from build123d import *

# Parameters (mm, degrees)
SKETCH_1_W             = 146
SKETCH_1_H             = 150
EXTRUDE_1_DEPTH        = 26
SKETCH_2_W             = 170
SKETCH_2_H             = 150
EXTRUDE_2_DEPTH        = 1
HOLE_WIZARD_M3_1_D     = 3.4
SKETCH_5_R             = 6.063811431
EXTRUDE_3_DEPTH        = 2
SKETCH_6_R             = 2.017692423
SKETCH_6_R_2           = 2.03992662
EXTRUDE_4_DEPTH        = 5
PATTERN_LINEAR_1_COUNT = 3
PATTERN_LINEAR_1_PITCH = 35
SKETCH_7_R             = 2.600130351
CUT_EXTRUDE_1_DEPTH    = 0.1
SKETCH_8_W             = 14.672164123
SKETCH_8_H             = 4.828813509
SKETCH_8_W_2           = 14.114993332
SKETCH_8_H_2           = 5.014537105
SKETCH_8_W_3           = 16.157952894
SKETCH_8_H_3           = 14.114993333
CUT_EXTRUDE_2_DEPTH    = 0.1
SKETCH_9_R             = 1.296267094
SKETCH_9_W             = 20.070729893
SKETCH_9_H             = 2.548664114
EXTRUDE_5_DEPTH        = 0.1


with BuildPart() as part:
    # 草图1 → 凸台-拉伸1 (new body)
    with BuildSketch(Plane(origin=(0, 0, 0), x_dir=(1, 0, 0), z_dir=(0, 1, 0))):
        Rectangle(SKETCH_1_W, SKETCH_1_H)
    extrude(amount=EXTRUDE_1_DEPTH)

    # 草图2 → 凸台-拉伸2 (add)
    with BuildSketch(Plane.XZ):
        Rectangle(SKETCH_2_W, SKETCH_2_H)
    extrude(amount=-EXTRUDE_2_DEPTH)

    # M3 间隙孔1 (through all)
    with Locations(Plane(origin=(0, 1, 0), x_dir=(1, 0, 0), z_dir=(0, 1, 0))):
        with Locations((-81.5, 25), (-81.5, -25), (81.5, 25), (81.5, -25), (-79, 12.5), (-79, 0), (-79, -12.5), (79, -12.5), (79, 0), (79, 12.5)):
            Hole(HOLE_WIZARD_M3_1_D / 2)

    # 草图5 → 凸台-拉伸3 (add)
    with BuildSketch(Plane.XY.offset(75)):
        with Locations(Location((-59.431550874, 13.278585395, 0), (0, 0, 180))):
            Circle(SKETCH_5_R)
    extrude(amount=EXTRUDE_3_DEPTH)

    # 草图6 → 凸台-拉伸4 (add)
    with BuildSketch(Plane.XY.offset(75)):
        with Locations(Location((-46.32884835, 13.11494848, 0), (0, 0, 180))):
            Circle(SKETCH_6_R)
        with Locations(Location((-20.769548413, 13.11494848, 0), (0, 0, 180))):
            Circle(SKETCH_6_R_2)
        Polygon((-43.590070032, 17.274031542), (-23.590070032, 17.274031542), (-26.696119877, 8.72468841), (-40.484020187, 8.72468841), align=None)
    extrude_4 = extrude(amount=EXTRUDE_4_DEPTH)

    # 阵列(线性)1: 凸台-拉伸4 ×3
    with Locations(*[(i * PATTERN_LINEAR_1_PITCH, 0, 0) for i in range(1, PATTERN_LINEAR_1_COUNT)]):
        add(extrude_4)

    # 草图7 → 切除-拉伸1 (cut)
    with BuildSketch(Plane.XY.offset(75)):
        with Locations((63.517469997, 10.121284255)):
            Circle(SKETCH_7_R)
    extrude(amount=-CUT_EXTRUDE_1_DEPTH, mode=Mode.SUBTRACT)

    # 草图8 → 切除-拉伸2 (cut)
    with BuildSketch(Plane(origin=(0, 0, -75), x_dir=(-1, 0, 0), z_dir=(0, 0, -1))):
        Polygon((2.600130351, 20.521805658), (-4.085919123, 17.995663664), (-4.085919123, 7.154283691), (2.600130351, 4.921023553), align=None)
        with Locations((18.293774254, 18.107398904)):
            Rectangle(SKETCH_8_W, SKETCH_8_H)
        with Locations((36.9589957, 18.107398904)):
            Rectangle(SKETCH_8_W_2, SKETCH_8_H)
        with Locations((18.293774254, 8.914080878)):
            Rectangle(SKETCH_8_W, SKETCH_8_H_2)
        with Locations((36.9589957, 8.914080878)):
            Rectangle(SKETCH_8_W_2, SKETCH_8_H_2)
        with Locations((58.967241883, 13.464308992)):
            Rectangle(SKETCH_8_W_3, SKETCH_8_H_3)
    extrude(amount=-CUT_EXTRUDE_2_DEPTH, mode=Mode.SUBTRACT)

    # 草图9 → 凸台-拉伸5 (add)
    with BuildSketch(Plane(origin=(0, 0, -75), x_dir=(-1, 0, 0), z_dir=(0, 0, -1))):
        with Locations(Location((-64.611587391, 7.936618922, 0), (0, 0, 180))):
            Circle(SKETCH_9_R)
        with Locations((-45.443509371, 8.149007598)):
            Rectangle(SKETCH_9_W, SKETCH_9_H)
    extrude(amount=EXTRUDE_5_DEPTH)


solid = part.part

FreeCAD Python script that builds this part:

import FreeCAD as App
import Part
import Sketcher

V = App.Vector

doc = App.newDocument("Part")
body = doc.addObject("PartDesign::Body", "Body")

sketch1 = body.newObject("Sketcher::SketchObject", "Sketch")
sketch1.AttachmentSupport = (doc.getObject("XZ_Plane"), [""])
sketch1.MapMode = "FlatFace"
sketch1.addGeometry(Part.LineSegment(V(-73, -75, 0), V(-73, 75, 0)), False)
sketch1.addGeometry(Part.LineSegment(V(-73, 75, 0), V(73, 75, 0)), False)
sketch1.addGeometry(Part.LineSegment(V(73, 75, 0), V(73, -75, 0)), False)
sketch1.addGeometry(Part.LineSegment(V(73, -75, 0), V(-73, -75, 0)), False)
sketch1.addConstraint(Sketcher.Constraint("Coincident", 0, 2, 1, 1))
sketch1.addConstraint(Sketcher.Constraint("Coincident", 1, 2, 2, 1))
sketch1.addConstraint(Sketcher.Constraint("Coincident", 2, 2, 3, 1))
sketch1.addConstraint(Sketcher.Constraint("Coincident", 3, 2, 0, 1))
sketch1.addConstraint(Sketcher.Constraint("Vertical", 0))
sketch1.addConstraint(Sketcher.Constraint("Horizontal", 1))
sketch1.addConstraint(Sketcher.Constraint("Vertical", 2))
sketch1.addConstraint(Sketcher.Constraint("Horizontal", 3))
sketch1.addConstraint(Sketcher.Constraint("Symmetric", 0, 2, 2, 2, -1, 1))
sketch1.addConstraint(Sketcher.Constraint("DistanceX", 1, 1, 1, 2, 146.0))
sketch1.addConstraint(Sketcher.Constraint("DistanceY", 0, 1, 0, 2, 150.0))
pad1 = body.newObject("PartDesign::Pad", "Pad")
pad1.Profile = sketch1
pad1.Length = 26
pad1.Reversed = True

sketch2 = body.newObject("Sketcher::SketchObject", "Sketch001")
sketch2.AttachmentSupport = (doc.getObject("XZ_Plane"), [""])
sketch2.MapMode = "FlatFace"
sketch2.addGeometry(Part.LineSegment(V(-85, 75, 0), V(-85, -75, 0)), False)
sketch2.addGeometry(Part.LineSegment(V(-85, -75, 0), V(85, -75, 0)), False)
sketch2.addGeometry(Part.LineSegment(V(85, -75, 0), V(85, 75, 0)), False)
sketch2.addGeometry(Part.LineSegment(V(85, 75, 0), V(-85, 75, 0)), False)
sketch2.addConstraint(Sketcher.Constraint("Coincident", 0, 2, 1, 1))
sketch2.addConstraint(Sketcher.Constraint("Coincident", 1, 2, 2, 1))
sketch2.addConstraint(Sketcher.Constraint("Coincident", 2, 2, 3, 1))
sketch2.addConstraint(Sketcher.Constraint("Coincident", 3, 2, 0, 1))
sketch2.addConstraint(Sketcher.Constraint("Vertical", 0))
sketch2.addConstraint(Sketcher.Constraint("Horizontal", 1))
sketch2.addConstraint(Sketcher.Constraint("Vertical", 2))
sketch2.addConstraint(Sketcher.Constraint("Horizontal", 3))
sketch2.addConstraint(Sketcher.Constraint("Symmetric", 0, 2, 2, 2, -1, 1))
sketch2.addConstraint(Sketcher.Constraint("DistanceX", 1, 1, 1, 2, 170.0))
sketch2.addConstraint(Sketcher.Constraint("DistanceY", 0, 2, 0, 1, 150.0))
pad2 = body.newObject("PartDesign::Pad", "Pad001")
pad2.Profile = sketch2
pad2.Length = 1
pad2.Reversed = True

sketch3 = body.newObject("Sketcher::SketchObject", "Sketch002")
sketch3.AttachmentSupport = (doc.getObject("XZ_Plane"), [""])
sketch3.MapMode = "FlatFace"
sketch3.AttachmentOffset = App.Placement(V(0, 0, -1), App.Rotation())
sketch3.addGeometry(Part.Circle(V(-81.5, -25, 0), V(0, 0, 1), 1.7), False)
sketch3.addGeometry(Part.Circle(V(-81.5, 25, 0), V(0, 0, 1), 1.7), False)
sketch3.addGeometry(Part.Circle(V(81.5, -25, 0), V(0, 0, 1), 1.7), False)
sketch3.addGeometry(Part.Circle(V(81.5, 25, 0), V(0, 0, 1), 1.7), False)
sketch3.addGeometry(Part.Circle(V(-79, -12.5, 0), V(0, 0, 1), 1.7), False)
sketch3.addGeometry(Part.Circle(V(-79, 0, 0), V(0, 0, 1), 1.7), False)
sketch3.addGeometry(Part.Circle(V(-79, 12.5, 0), V(0, 0, 1), 1.7), False)
sketch3.addGeometry(Part.Circle(V(79, 12.5, 0), V(0, 0, 1), 1.7), False)
sketch3.addGeometry(Part.Circle(V(79, 0, 0), V(0, 0, 1), 1.7), False)
sketch3.addGeometry(Part.Circle(V(79, -12.5, 0), V(0, 0, 1), 1.7), False)
sketch3.addConstraint(Sketcher.Constraint("Equal", 0, 1))
sketch3.addConstraint(Sketcher.Constraint("Equal", 1, 2))
sketch3.addConstraint(Sketcher.Constraint("Equal", 2, 3))
sketch3.addConstraint(Sketcher.Constraint("Equal", 3, 4))
sketch3.addConstraint(Sketcher.Constraint("Equal", 4, 5))
sketch3.addConstraint(Sketcher.Constraint("Equal", 5, 6))
sketch3.addConstraint(Sketcher.Constraint("Equal", 6, 7))
sketch3.addConstraint(Sketcher.Constraint("Equal", 7, 8))
sketch3.addConstraint(Sketcher.Constraint("Equal", 8, 9))
sketch3.addConstraint(Sketcher.Constraint("Symmetric", 1, 3, 2, 3, -1, 1))
sketch3.addConstraint(Sketcher.Constraint("Symmetric", 0, 3, 3, 3, -1, 1))
sketch3.addConstraint(Sketcher.Constraint("Symmetric", 4, 3, 7, 3, -1, 1))
sketch3.addConstraint(Sketcher.Constraint("Symmetric", 5, 3, 8, 3, -1, 1))
sketch3.addConstraint(Sketcher.Constraint("Symmetric", 6, 3, 9, 3, -1, 1))
sketch3.addConstraint(Sketcher.Constraint("Symmetric", 0, 3, 2, 3, -2))
sketch3.addConstraint(Sketcher.Constraint("Symmetric", 6, 3, 7, 3, -2))
sketch3.addConstraint(Sketcher.Constraint("PointOnObject", 5, 3, -1))
sketch3.addConstraint(Sketcher.Constraint("Vertical", 4, 3, 5, 3))
sketch3.addConstraint(Sketcher.Constraint("Diameter", 0, 3.4))
sketch3.addConstraint(Sketcher.Constraint("DistanceY", 0, 3, -1, 1, 25.0))
sketch3.addConstraint(Sketcher.Constraint("DistanceX", 4, 3, -1, 1, 79.0))
sketch3.addConstraint(Sketcher.Constraint("DistanceX", 0, 3, 2, 3, 163.0))
sketch3.addConstraint(Sketcher.Constraint("DistanceY", 4, 3, 6, 3, 25.0))
doc.recompute()
hole = body.newObject("PartDesign::Hole", "Hole")
hole.Profile = sketch3
hole.ThreadType = "None"
hole.Diameter = 3.4
hole.DepthType = "ThroughAll"
hole.Reversed = True

sketch4 = body.newObject("Sketcher::SketchObject", "Sketch003")
sketch4.AttachmentSupport = (doc.getObject("XY_Plane"), [""])
sketch4.MapMode = "FlatFace"
sketch4.AttachmentOffset = App.Placement(V(0, 0, 75), App.Rotation())
sketch4.addGeometry(Part.Circle(V(-59.431551, 13.278585, 0), V(0, 0, 1), 6.063811), False)
sketch4.addConstraint(Sketcher.Constraint("Diameter", 0, 12.127623))
sketch4.addConstraint(Sketcher.Constraint("DistanceX", 0, 3, -1, 1, 59.431551))
sketch4.addConstraint(Sketcher.Constraint("DistanceY", -1, 1, 0, 3, 13.278585))
pad3 = body.newObject("PartDesign::Pad", "Pad002")
pad3.Profile = sketch4
pad3.Length = 2

sketch5 = body.newObject("Sketcher::SketchObject", "Sketch004")
sketch5.AttachmentSupport = (doc.getObject("XY_Plane"), [""])
sketch5.MapMode = "FlatFace"
sketch5.AttachmentOffset = App.Placement(V(0, 0, 75), App.Rotation())
sketch5.addGeometry(Part.Circle(V(-46.328848, 13.114948, 0), V(0, 0, 1), 2.017692), False)
sketch5.addGeometry(Part.Circle(V(-20.769548, 13.114948, 0), V(0, 0, 1), 2.039927), False)
sketch5.addGeometry(Part.LineSegment(V(-23.59007, 17.274032, 0), V(-43.59007, 17.274032, 0)), False)
sketch5.addGeometry(Part.LineSegment(V(-43.59007, 17.274032, 0), V(-40.48402, 8.724688, 0)), False)
sketch5.addGeometry(Part.LineSegment(V(-40.48402, 8.724688, 0), V(-26.69612, 8.724688, 0)), False)
sketch5.addGeometry(Part.LineSegment(V(-26.69612, 8.724688, 0), V(-23.59007, 17.274032, 0)), False)
sketch5.addConstraint(Sketcher.Constraint("Coincident", 2, 2, 3, 1))
sketch5.addConstraint(Sketcher.Constraint("Coincident", 3, 2, 4, 1))
sketch5.addConstraint(Sketcher.Constraint("Coincident", 4, 2, 5, 1))
sketch5.addConstraint(Sketcher.Constraint("Coincident", 5, 2, 2, 1))
sketch5.addConstraint(Sketcher.Constraint("Horizontal", 2))
sketch5.addConstraint(Sketcher.Constraint("Horizontal", 4))
sketch5.addConstraint(Sketcher.Constraint("Horizontal", 0, 3, 1, 3))
sketch5.addConstraint(Sketcher.Constraint("Equal", 3, 5))
sketch5.addConstraint(Sketcher.Constraint("DistanceX", 2, 2, 2, 1, 20.0))
sketch5.addConstraint(Sketcher.Constraint("Diameter", 0, 4.035385))
sketch5.addConstraint(Sketcher.Constraint("Diameter", 1, 4.079853))
sketch5.addConstraint(Sketcher.Constraint("DistanceX", 4, 1, 4, 2, 13.7879))
sketch5.addConstraint(Sketcher.Constraint("DistanceX", 0, 3, 1, 3, 25.5593))
sketch5.addConstraint(Sketcher.Constraint("DistanceX", 0, 3, -1, 1, 46.328848))
sketch5.addConstraint(Sketcher.Constraint("DistanceY", -1, 1, 0, 3, 13.114948))
sketch5.addConstraint(Sketcher.Constraint("DistanceX", 2, 2, -1, 1, 43.59007))
sketch5.addConstraint(Sketcher.Constraint("DistanceY", -1, 1, 2, 2, 17.274032))
sketch5.addConstraint(Sketcher.Constraint("DistanceY", -1, 1, 3, 2, 8.724688))
pad4 = body.newObject("PartDesign::Pad", "Pad003")
pad4.Profile = sketch5
pad4.Length = 5
doc.recompute()

linearpattern = body.newObject("PartDesign::LinearPattern", "LinearPattern")
linearpattern.Originals = [pad4]
linearpattern.Direction = (doc.getObject("X_Axis"), [""])
linearpattern.Mode = "offset"
linearpattern.Offset = 35
linearpattern.Occurrences = 3
body.Tip = linearpattern

sketch6 = body.newObject("Sketcher::SketchObject", "Sketch005")
sketch6.AttachmentSupport = (doc.getObject("XY_Plane"), [""])
sketch6.MapMode = "FlatFace"
sketch6.AttachmentOffset = App.Placement(V(0, 0, 75), App.Rotation())
sketch6.addGeometry(Part.Circle(V(63.51747, 10.121284, 0), V(0, 0, 1), 2.60013), False)
sketch6.addConstraint(Sketcher.Constraint("Diameter", 0, 5.200261))
sketch6.addConstraint(Sketcher.Constraint("DistanceX", -1, 1, 0, 3, 63.51747))
sketch6.addConstraint(Sketcher.Constraint("DistanceY", -1, 1, 0, 3, 10.121284))
pocket1 = body.newObject("PartDesign::Pocket", "Pocket")
pocket1.Profile = sketch6
pocket1.Length = 0.1

sketch7 = body.newObject("Sketcher::SketchObject", "Sketch006")
sketch7.AttachmentSupport = (doc.getObject("XY_Plane"), [""])
sketch7.MapMode = "FlatFace"
sketch7.AttachmentOffset = App.Placement(V(0, 0, -75), App.Rotation())
sketch7.addGeometry(Part.LineSegment(V(-2.60013, 20.521806, 0), V(4.085919, 17.995664, 0)), False)
sketch7.addGeometry(Part.LineSegment(V(4.085919, 17.995664, 0), V(4.085919, 7.154284, 0)), False)
sketch7.addGeometry(Part.LineSegment(V(4.085919, 7.154284, 0), V(-2.60013, 4.921024, 0)), False)
sketch7.addGeometry(Part.LineSegment(V(-2.60013, 4.921024, 0), V(-2.60013, 20.521806, 0)), False)
sketch7.addGeometry(Part.LineSegment(V(-10.957692, 20.521806, 0), V(-10.957692, 15.692992, 0)), False)
sketch7.addGeometry(Part.LineSegment(V(-10.957692, 15.692992, 0), V(-25.629856, 15.692992, 0)), False)
sketch7.addGeometry(Part.LineSegment(V(-25.629856, 15.692992, 0), V(-25.629856, 20.521806, 0)), False)
sketch7.addGeometry(Part.LineSegment(V(-25.629856, 20.521806, 0), V(-10.957692, 20.521806, 0)), False)
sketch7.addGeometry(Part.LineSegment(V(-29.901499, 20.521806, 0), V(-29.901499, 15.692992, 0)), False)
sketch7.addGeometry(Part.LineSegment(V(-29.901499, 15.692992, 0), V(-44.016492, 15.692992, 0)), False)
sketch7.addGeometry(Part.LineSegment(V(-44.016492, 15.692992, 0), V(-44.016492, 20.521806, 0)), False)
sketch7.addGeometry(Part.LineSegment(V(-44.016492, 20.521806, 0), V(-29.901499, 20.521806, 0)), False)
sketch7.addGeometry(Part.LineSegment(V(-10.957692, 11.421349, 0), V(-10.957692, 6.406812, 0)), False)
sketch7.addGeometry(Part.LineSegment(V(-10.957692, 6.406812, 0), V(-25.629856, 6.406812, 0)), False)
sketch7.addGeometry(Part.LineSegment(V(-25.629856, 6.406812, 0), V(-25.629856, 11.421349, 0)), False)
sketch7.addGeometry(Part.LineSegment(V(-25.629856, 11.421349, 0), V(-10.957692, 11.421349, 0)), False)
sketch7.addGeometry(Part.LineSegment(V(-29.901499, 11.421349, 0), V(-29.901499, 6.406812, 0)), False)
sketch7.addGeometry(Part.LineSegment(V(-29.901499, 6.406812, 0), V(-44.016492, 6.406812, 0)), False)
sketch7.addGeometry(Part.LineSegment(V(-44.016492, 6.406812, 0), V(-44.016492, 11.421349, 0)), False)
sketch7.addGeometry(Part.LineSegment(V(-44.016492, 11.421349, 0), V(-29.901499, 11.421349, 0)), False)
sketch7.addGeometry(Part.LineSegment(V(-50.888265, 20.521806, 0), V(-50.888265, 6.406812, 0)), False)
sketch7.addGeometry(Part.LineSegment(V(-50.888265, 6.406812, 0), V(-67.046218, 6.406812, 0)), False)
sketch7.addGeometry(Part.LineSegment(V(-67.046218, 6.406812, 0), V(-67.046218, 20.521806, 0)), False)
sketch7.addGeometry(Part.LineSegment(V(-67.046218, 20.521806, 0), V(-50.888265, 20.521806, 0)), False)
sketch7.addConstraint(Sketcher.Constraint("Coincident", 0, 2, 1, 1))
sketch7.addConstraint(Sketcher.Constraint("Coincident", 1, 2, 2, 1))
sketch7.addConstraint(Sketcher.Constraint("Coincident", 2, 2, 3, 1))
sketch7.addConstraint(Sketcher.Constraint("Coincident", 3, 2, 0, 1))
sketch7.addConstraint(Sketcher.Constraint("Coincident", 4, 2, 5, 1))
sketch7.addConstraint(Sketcher.Constraint("Coincident", 5, 2, 6, 1))
sketch7.addConstraint(Sketcher.Constraint("Coincident", 6, 2, 7, 1))
sketch7.addConstraint(Sketcher.Constraint("Coincident", 7, 2, 4, 1))
sketch7.addConstraint(Sketcher.Constraint("Coincident", 8, 2, 9, 1))
sketch7.addConstraint(Sketcher.Constraint("Coincident", 9, 2, 10, 1))
sketch7.addConstraint(Sketcher.Constraint("Coincident", 10, 2, 11, 1))
sketch7.addConstraint(Sketcher.Constraint("Coincident", 11, 2, 8, 1))
sketch7.addConstraint(Sketcher.Constraint("Coincident", 12, 2, 13, 1))
sketch7.addConstraint(Sketcher.Constraint("Coincident", 13, 2, 14, 1))
sketch7.addConstraint(Sketcher.Constraint("Coincident", 14, 2, 15, 1))
sketch7.addConstraint(Sketcher.Constraint("Coincident", 15, 2, 12, 1))
sketch7.addConstraint(Sketcher.Constraint("Coincident", 16, 2, 17, 1))
sketch7.addConstraint(Sketcher.Constraint("Coincident", 17, 2, 18, 1))
sketch7.addConstraint(Sketcher.Constraint("Coincident", 18, 2, 19, 1))
sketch7.addConstraint(Sketcher.Constraint("Coincident", 19, 2, 16, 1))
sketch7.addConstraint(Sketcher.Constraint("Coincident", 20, 2, 21, 1))
sketch7.addConstraint(Sketcher.Constraint("Coincident", 21, 2, 22, 1))
sketch7.addConstraint(Sketcher.Constraint("Coincident", 22, 2, 23, 1))
sketch7.addConstraint(Sketcher.Constraint("Coincident", 23, 2, 20, 1))
sketch7.addConstraint(Sketcher.Constraint("Vertical", 1))
sketch7.addConstraint(Sketcher.Constraint("Vertical", 3))
sketch7.addConstraint(Sketcher.Constraint("Vertical", 4))
sketch7.addConstraint(Sketcher.Constraint("Horizontal", 5))
sketch7.addConstraint(Sketcher.Constraint("Vertical", 6))
sketch7.addConstraint(Sketcher.Constraint("Horizontal", 7))
sketch7.addConstraint(Sketcher.Constraint("Vertical", 8))
sketch7.addConstraint(Sketcher.Constraint("Horizontal", 9))
sketch7.addConstraint(Sketcher.Constraint("Vertical", 10))
sketch7.addConstraint(Sketcher.Constraint("Horizontal", 11))
sketch7.addConstraint(Sketcher.Constraint("Vertical", 12))
sketch7.addConstraint(Sketcher.Constraint("Horizontal", 13))
sketch7.addConstraint(Sketcher.Constraint("Vertical", 14))
sketch7.addConstraint(Sketcher.Constraint("Horizontal", 15))
sketch7.addConstraint(Sketcher.Constraint("Vertical", 16))
sketch7.addConstraint(Sketcher.Constraint("Horizontal", 17))
sketch7.addConstraint(Sketcher.Constraint("Vertical", 18))
sketch7.addConstraint(Sketcher.Constraint("Horizontal", 19))
sketch7.addConstraint(Sketcher.Constraint("Vertical", 20))
sketch7.addConstraint(Sketcher.Constraint("Horizontal", 21))
sketch7.addConstraint(Sketcher.Constraint("Vertical", 22))
sketch7.addConstraint(Sketcher.Constraint("Horizontal", 23))
sketch7.addConstraint(Sketcher.Constraint("Horizontal", 3, 2, 6, 2))
sketch7.addConstraint(Sketcher.Constraint("Horizontal", 5, 2, 8, 2))
sketch7.addConstraint(Sketcher.Constraint("Horizontal", 7, 2, 10, 2))
sketch7.addConstraint(Sketcher.Constraint("Horizontal", 13, 2, 16, 2))
sketch7.addConstraint(Sketcher.Constraint("Horizontal", 15, 2, 18, 2))
sketch7.addConstraint(Sketcher.Constraint("Horizontal", 17, 2, 20, 2))
sketch7.addConstraint(Sketcher.Constraint("Horizontal", 11, 2, 22, 2))
sketch7.addConstraint(Sketcher.Constraint("Vertical", 7, 2, 12, 2))
sketch7.addConstraint(Sketcher.Constraint("Vertical", 6, 2, 13, 2))
sketch7.addConstraint(Sketcher.Constraint("Vertical", 11, 2, 16, 2))
sketch7.addConstraint(Sketcher.Constraint("Vertical", 10, 2, 17, 2))
sketch7.addConstraint(Sketcher.Constraint("Equal", 19, 20))
sketch7.addConstraint(Sketcher.Constraint("DistanceY", 1, 2, 1, 1, 10.84138))
sketch7.addConstraint(Sketcher.Constraint("DistanceX", 8, 2, -1, 1, 29.901499))
sketch7.addConstraint(Sketcher.Constraint("DistanceX", 9, 2, 4, 2, 33.0588))
sketch7.addConstraint(Sketcher.Constraint("DistanceX", 5, 2, 5, 1, 14.672164))
sketch7.addConstraint(Sketcher.Constraint("DistanceX", 9, 2, 9, 1, 14.114993))
sketch7.addConstraint(Sketcher.Constraint("DistanceX", 21, 2, 21, 1, 16.157953))
sketch7.addConstraint(Sketcher.Constraint("DistanceY", 3, 1, 3, 2, 15.600782))
sketch7.addConstraint(Sketcher.Constraint("DistanceY", 4, 2, 4, 1, 4.828814))
sketch7.addConstraint(Sketcher.Constraint("DistanceY", 12, 2, 12, 1, 5.014537))
sketch7.addConstraint(Sketcher.Constraint("DistanceX", -1, 1, 0, 2, 4.085919))
sketch7.addConstraint(Sketcher.Constraint("DistanceX", 2, 2, -1, 1, 2.60013))
sketch7.addConstraint(Sketcher.Constraint("DistanceY", -1, 1, 14, 2, 11.421349))
sketch7.addConstraint(Sketcher.Constraint("DistanceX", 21, 2, -1, 1, 67.046218))
sketch7.addConstraint(Sketcher.Constraint("DistanceY", 2, 2, 1, 2, 2.23326))
pocket2 = body.newObject("PartDesign::Pocket", "Pocket001")
pocket2.Profile = sketch7
pocket2.Length = 0.1
pocket2.Reversed = True

sketch8 = body.newObject("Sketcher::SketchObject", "Sketch007")
sketch8.AttachmentSupport = (doc.getObject("XY_Plane"), [""])
sketch8.MapMode = "FlatFace"
sketch8.AttachmentOffset = App.Placement(V(0, 0, -75), App.Rotation())
sketch8.addGeometry(Part.Circle(V(64.611587, 7.936619, 0), V(0, 0, 1), 1.296267), False)
sketch8.addGeometry(Part.LineSegment(V(55.478874, 9.42334, 0), V(55.478874, 6.874676, 0)), False)
sketch8.addGeometry(Part.LineSegment(V(55.478874, 6.874676, 0), V(35.408144, 6.874676, 0)), False)
sketch8.addGeometry(Part.LineSegment(V(35.408144, 6.874676, 0), V(35.408144, 9.42334, 0)), False)
sketch8.addGeometry(Part.LineSegment(V(35.408144, 9.42334, 0), V(55.478874, 9.42334, 0)), False)
sketch8.addConstraint(Sketcher.Constraint("Coincident", 1, 2, 2, 1))
sketch8.addConstraint(Sketcher.Constraint("Coincident", 2, 2, 3, 1))
sketch8.addConstraint(Sketcher.Constraint("Coincident", 3, 2, 4, 1))
sketch8.addConstraint(Sketcher.Constraint("Coincident", 4, 2, 1, 1))
sketch8.addConstraint(Sketcher.Constraint("Vertical", 1))
sketch8.addConstraint(Sketcher.Constraint("Horizontal", 2))
sketch8.addConstraint(Sketcher.Constraint("Vertical", 3))
sketch8.addConstraint(Sketcher.Constraint("Horizontal", 4))
sketch8.addConstraint(Sketcher.Constraint("Diameter", 0, 2.592534))
sketch8.addConstraint(Sketcher.Constraint("DistanceX", 2, 2, 2, 1, 20.07073))
sketch8.addConstraint(Sketcher.Constraint("DistanceY", 1, 2, 1, 1, 2.548664))
sketch8.addConstraint(Sketcher.Constraint("DistanceY", -1, 1, 0, 3, 7.936619))
sketch8.addConstraint(Sketcher.Constraint("DistanceY", -1, 1, 3, 2, 9.42334))
sketch8.addConstraint(Sketcher.Constraint("DistanceX", -1, 1, 0, 3, 64.611587))
sketch8.addConstraint(Sketcher.Constraint("DistanceX", -1, 1, 1, 2, 55.478874))
pad5 = body.newObject("PartDesign::Pad", "Pad004")
pad5.Profile = sketch8
pad5.Length = 0.1
pad5.Reversed = True

doc.recompute()
